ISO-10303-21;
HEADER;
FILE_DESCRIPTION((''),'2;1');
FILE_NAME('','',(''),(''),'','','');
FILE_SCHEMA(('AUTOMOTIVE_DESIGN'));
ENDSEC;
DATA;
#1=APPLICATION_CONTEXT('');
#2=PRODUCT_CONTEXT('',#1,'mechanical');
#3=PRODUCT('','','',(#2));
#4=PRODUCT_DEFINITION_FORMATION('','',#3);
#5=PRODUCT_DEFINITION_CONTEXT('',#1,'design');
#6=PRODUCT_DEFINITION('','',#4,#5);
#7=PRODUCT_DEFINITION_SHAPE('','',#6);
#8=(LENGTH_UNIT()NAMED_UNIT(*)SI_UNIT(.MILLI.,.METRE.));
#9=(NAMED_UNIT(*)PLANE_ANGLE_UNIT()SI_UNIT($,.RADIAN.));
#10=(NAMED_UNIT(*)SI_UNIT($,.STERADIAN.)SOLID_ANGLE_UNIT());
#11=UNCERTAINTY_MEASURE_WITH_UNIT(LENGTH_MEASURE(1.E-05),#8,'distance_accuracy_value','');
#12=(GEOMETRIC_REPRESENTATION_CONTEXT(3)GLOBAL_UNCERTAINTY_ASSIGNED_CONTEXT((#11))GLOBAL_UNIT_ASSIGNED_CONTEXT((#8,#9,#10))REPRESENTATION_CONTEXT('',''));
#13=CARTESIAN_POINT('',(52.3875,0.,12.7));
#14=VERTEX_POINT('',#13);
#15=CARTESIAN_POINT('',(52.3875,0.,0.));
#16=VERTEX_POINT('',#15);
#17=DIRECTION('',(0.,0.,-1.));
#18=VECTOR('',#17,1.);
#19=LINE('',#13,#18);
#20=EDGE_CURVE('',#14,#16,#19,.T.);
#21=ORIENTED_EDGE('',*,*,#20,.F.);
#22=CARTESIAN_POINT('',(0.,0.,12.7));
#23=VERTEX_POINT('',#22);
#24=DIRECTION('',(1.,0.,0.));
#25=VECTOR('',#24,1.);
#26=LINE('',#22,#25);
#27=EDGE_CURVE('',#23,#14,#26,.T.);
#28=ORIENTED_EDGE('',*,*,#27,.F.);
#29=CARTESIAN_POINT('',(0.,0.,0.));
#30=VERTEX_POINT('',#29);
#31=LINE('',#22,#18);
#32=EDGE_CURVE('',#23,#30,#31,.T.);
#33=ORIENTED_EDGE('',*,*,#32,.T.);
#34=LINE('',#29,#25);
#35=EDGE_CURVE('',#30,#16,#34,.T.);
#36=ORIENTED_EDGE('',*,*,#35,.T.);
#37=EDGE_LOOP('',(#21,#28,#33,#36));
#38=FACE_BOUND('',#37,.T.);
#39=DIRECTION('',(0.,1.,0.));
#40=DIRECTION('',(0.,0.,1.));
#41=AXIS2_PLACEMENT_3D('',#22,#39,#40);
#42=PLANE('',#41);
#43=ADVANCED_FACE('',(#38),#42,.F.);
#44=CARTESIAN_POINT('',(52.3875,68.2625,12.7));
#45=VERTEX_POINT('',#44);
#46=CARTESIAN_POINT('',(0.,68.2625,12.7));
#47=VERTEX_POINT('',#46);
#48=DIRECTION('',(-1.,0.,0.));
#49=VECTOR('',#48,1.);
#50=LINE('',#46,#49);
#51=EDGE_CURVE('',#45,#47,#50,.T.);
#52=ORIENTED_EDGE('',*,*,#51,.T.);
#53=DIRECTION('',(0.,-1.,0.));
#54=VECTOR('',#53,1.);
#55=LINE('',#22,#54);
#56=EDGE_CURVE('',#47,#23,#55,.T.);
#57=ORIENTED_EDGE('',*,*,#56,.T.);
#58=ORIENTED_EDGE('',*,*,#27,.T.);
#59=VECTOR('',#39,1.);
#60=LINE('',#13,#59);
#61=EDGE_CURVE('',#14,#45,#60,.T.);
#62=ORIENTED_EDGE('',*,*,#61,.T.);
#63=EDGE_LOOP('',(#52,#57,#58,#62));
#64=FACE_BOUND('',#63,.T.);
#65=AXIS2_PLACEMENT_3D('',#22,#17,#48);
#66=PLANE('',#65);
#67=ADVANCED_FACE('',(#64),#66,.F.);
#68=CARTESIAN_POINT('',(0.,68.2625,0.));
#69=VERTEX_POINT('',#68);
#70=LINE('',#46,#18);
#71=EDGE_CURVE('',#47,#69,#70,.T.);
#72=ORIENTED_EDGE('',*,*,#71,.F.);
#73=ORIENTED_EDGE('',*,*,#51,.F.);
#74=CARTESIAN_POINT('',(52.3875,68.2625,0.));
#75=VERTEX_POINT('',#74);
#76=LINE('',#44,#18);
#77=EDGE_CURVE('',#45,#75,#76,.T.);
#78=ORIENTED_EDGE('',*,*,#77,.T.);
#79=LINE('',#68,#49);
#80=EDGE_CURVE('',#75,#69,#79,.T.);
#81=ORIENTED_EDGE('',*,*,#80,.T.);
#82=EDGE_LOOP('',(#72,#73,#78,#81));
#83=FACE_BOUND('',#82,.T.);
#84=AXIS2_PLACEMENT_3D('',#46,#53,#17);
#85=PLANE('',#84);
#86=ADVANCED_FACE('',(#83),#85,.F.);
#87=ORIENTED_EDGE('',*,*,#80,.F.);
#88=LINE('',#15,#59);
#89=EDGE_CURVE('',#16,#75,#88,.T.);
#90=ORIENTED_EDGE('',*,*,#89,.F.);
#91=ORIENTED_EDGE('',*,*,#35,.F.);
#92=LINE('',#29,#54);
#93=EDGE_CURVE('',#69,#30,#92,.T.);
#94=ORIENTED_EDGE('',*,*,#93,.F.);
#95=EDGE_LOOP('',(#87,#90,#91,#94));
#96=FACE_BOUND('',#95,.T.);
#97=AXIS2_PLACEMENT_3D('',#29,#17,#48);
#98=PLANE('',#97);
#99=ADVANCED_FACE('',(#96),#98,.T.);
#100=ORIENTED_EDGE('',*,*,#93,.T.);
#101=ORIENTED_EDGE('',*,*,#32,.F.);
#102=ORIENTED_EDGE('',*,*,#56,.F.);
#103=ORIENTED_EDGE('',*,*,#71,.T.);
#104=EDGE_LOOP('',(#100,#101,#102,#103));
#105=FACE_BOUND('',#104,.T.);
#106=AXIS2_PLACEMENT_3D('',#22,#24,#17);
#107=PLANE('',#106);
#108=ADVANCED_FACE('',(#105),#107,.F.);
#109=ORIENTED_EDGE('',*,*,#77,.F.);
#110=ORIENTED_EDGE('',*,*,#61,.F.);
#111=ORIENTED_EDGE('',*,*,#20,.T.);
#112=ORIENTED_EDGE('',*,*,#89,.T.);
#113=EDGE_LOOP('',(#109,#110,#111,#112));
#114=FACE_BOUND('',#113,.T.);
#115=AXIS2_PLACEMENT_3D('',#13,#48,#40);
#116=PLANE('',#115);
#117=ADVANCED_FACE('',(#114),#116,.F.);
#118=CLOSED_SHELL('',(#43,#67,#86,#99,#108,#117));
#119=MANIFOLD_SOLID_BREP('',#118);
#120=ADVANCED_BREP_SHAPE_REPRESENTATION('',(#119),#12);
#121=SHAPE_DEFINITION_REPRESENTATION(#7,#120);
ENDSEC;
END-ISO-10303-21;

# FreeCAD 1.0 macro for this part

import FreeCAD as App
import Part
import Sketcher

V = App.Vector
Q = App.Units.Quantity

doc = App.newDocument("Part")
body = doc.addObject("PartDesign::Body", "Body")

# Sketch on XY plane
sketch1 = body.newObject("Sketcher::SketchObject", "Sketch")
sketch1.AttachmentSupport = (doc.getObject("XY_Plane"), [""])
sketch1.MapMode = "FlatFace"
sketch1.addGeometry([
    Part.LineSegment(V(0, 68, 0), V(0, 0, 0)),
    Part.LineSegment(V(0, 0, 0), V(52, 0, 0)),
    Part.LineSegment(V(52, 0, 0), V(52, 68, 0)),
    Part.LineSegment(V(52, 68, 0), V(0, 68, 0)),
], False)
sketch1.addConstraint([
    Sketcher.Constraint("Coincident", 0, 2, 1, 1),
    Sketcher.Constraint("Coincident", 1, 2, 2, 1),
    Sketcher.Constraint("Coincident", 2, 2, 3, 1),
    Sketcher.Constraint("Coincident", 3, 2, 0, 1),
    Sketcher.Constraint("Vertical", 0),
    Sketcher.Constraint("Horizontal", 1),
    Sketcher.Constraint("Vertical", 2),
    Sketcher.Constraint("Horizontal", 3),
    Sketcher.Constraint("Coincident", 0, 2, -1, 1),
    Sketcher.Constraint("DistanceX", 1, 1, 1, 2, Q("2.0625 in")),
    Sketcher.Constraint("DistanceY", 0, 2, 0, 1, Q("2.6875 in")),
])
pad1 = body.newObject("PartDesign::Pad", "Pad")
pad1.Profile = sketch1
pad1.Length = Q("0.5 in")

doc.recompute()
